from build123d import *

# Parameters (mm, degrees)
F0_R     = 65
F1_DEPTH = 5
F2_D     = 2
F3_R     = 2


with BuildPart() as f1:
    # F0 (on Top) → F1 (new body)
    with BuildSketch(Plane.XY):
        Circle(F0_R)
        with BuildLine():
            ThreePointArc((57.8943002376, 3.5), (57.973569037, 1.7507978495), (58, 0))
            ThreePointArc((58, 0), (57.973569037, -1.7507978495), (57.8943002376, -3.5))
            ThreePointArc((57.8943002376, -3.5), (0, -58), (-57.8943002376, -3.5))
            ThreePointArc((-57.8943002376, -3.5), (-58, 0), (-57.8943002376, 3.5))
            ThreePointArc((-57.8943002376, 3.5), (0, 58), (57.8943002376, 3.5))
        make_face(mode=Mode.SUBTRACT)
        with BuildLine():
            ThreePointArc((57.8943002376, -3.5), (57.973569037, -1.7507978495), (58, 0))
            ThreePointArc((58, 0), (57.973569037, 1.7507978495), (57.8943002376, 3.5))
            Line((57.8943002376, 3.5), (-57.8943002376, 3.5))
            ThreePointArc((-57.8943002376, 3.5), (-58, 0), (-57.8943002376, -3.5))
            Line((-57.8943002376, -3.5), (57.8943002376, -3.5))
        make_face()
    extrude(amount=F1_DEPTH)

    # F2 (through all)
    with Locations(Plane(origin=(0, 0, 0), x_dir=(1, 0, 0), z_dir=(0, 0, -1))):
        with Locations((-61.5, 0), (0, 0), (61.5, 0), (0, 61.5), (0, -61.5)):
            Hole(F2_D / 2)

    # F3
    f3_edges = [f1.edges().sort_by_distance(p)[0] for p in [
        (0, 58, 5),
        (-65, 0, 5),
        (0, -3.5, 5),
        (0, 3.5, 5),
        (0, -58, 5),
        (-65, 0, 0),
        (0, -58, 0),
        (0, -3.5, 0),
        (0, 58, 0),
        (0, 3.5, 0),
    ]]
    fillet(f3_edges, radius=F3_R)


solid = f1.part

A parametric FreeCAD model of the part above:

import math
import FreeCAD as App
import Part
import Sketcher
from FreeCAD import Vector
Q = App.Units.Quantity


def edges_at(feature, points):
    """Names of the edges that pass closest to the given points."""
    edges = feature.Shape.Edges
    near = lambda p: min(range(len(edges)), key=lambda i: edges[i].distToShape(Part.Vertex(*p))[0])
    return sorted({f"Edge{near(p) + 1}" for p in points})

doc = App.newDocument("Part")
params = doc.addObject("Spreadsheet::Sheet", "Params")
for row, (alias, value) in enumerate([
    ("sketch1_diameter", "130 mm"),
    ("sketch1_radius", "58 mm"),
    ("pad1_length", "5 mm"),
    ("sketch2_diameter", "2 mm"),
    ("hole_diameter", "2 mm"),
    ("fillet_radius", "2 mm"),
], start=1):
    params.set(f"A{row}", alias)
    params.set(f"B{row}", "=" + value)
    params.setAlias(f"B{row}", alias)

body = doc.addObject("PartDesign::Body", "Body")

sketch1 = doc.addObject("Sketcher::SketchObject", "Sketch")
body.addObject(sketch1)
sketch1.AttachmentSupport = (doc.XY_Plane, [""])
sketch1.MapMode = "FlatFace"
sketch1.addGeometry(Part.Circle(Vector(0, 0, 0), Vector(0, 0, 1), 65), False)
sketch1.addGeometry(Part.ArcOfCircle(Part.Circle(Vector(0, 0, 0), Vector(0, 0, 1), 58), math.radians(3), math.radians(177)), False)
sketch1.addGeometry(Part.LineSegment(Vector(58, 4, 0), Vector(-58, 4, 0)), False)
sketch1.addGeometry(Part.ArcOfCircle(Part.Circle(Vector(0, 0, 0), Vector(0, 0, 1), 58), math.radians(-177), math.radians(-3)), False)
sketch1.addGeometry(Part.LineSegment(Vector(-58, -4, 0), Vector(58, -4, 0)), False)
sketch1.addConstraint(Sketcher.Constraint("Coincident", 1, 1, 2, 1))
sketch1.addConstraint(Sketcher.Constraint("Coincident", 2, 2, 1, 2))
sketch1.addConstraint(Sketcher.Constraint("Coincident", 3, 1, 4, 1))
sketch1.addConstraint(Sketcher.Constraint("Coincident", 4, 2, 3, 2))
sketch1.addConstraint(Sketcher.Constraint("Horizontal", 2))
sketch1.addConstraint(Sketcher.Constraint("Horizontal", 4))
sketch1.addConstraint(Sketcher.Constraint("Coincident", 0, 3, -1, 1))
sketch1.addConstraint(Sketcher.Constraint("Coincident", 1, 3, -1, 1))
sketch1.addConstraint(Sketcher.Constraint("Coincident", 3, 3, -1, 1))
sketch1.addConstraint(Sketcher.Constraint("Equal", 1, 3))
sketch1.addConstraint(Sketcher.Constraint("Vertical", 2, 2, 3, 1))
sketch1.addConstraint(Sketcher.Constraint("Diameter", 0, Q("130 mm")))
sketch1.addConstraint(Sketcher.Constraint("Radius", 1, Q("58 mm")))
sketch1.addConstraint(Sketcher.Constraint("DistanceY", 3, 1, 2, 2, Q("7 mm")))
sketch1.setExpression("Constraints[11]", "Params.sketch1_diameter")
sketch1.setExpression("Constraints[12]", "Params.sketch1_radius")
pad1 = doc.addObject("PartDesign::Pad", "Pad")
body.addObject(pad1)
pad1.Profile = sketch1
pad1.setExpression("Length", "Params.pad1_length")

sketch2 = doc.addObject("Sketcher::SketchObject", "Sketch001")
body.addObject(sketch2)
sketch2.AttachmentSupport = (doc.XY_Plane, [""])
sketch2.MapMode = "FlatFace"
sketch2.addGeometry(Part.Circle(Vector(-61.5, 0, 0), Vector(0, 0, 1), 1), False)
sketch2.addGeometry(Part.Circle(Vector(0, 0, 0), Vector(0, 0, 1), 1), False)
sketch2.addGeometry(Part.Circle(Vector(61.5, 0, 0), Vector(0, 0, 1), 1), False)
sketch2.addGeometry(Part.Circle(Vector(0, -61.5, 0), Vector(0, 0, 1), 1), False)
sketch2.addGeometry(Part.Circle(Vector(0, 61.5, 0), Vector(0, 0, 1), 1), False)
sketch2.addConstraint(Sketcher.Constraint("Coincident", 1, 3, -1, 1))
sketch2.addConstraint(Sketcher.Constraint("Equal", 0, 1))
sketch2.addConstraint(Sketcher.Constraint("Equal", 1, 2))
sketch2.addConstraint(Sketcher.Constraint("Equal", 2, 3))
sketch2.addConstraint(Sketcher.Constraint("Equal", 3, 4))
sketch2.addConstraint(Sketcher.Constraint("Symmetric", 0, 3, 2, 3, -1, 1))
sketch2.addConstraint(Sketcher.Constraint("Symmetric", 3, 3, 4, 3, -1, 1))
sketch2.addConstraint(Sketcher.Constraint("PointOnObject", 0, 3, -1))
sketch2.addConstraint(Sketcher.Constraint("PointOnObject", 3, 3, -2))
sketch2.addConstraint(Sketcher.Constraint("Diameter", 0, Q("2 mm")))
sketch2.addConstraint(Sketcher.Constraint("DistanceX", 0, 3, 2, 3, Q("123 mm")))
sketch2.addConstraint(Sketcher.Constraint("DistanceY", 3, 3, 4, 3, Q("123 mm")))
sketch2.setExpression("Constraints[9]", "Params.sketch2_diameter")
doc.recompute()
hole = doc.addObject("PartDesign::Hole", "Hole")
body.addObject(hole)
hole.Profile = sketch2
hole.ThreadType = "None"
hole.setExpression("Diameter", "Params.hole_diameter")
hole.DepthType = "ThroughAll"
hole.Reversed = True
doc.recompute()

fillet = doc.addObject("PartDesign::Fillet", "Fillet")
body.addObject(fillet)
fillet.Base = (hole, edges_at(hole, [
    (0, 58, 5),
    (-65, 0, 5),
    (0, -3.5, 5),
    (0, 3.5, 5),
    (0, -58, 5),
    (-65, 0, 0),
    (0, -58, 0),
    (0, -3.5, 0),
    (0, 58, 0),
    (0, 3.5, 0),
]))
fillet.setExpression("Radius", "Params.fillet_radius")

doc.recompute()
